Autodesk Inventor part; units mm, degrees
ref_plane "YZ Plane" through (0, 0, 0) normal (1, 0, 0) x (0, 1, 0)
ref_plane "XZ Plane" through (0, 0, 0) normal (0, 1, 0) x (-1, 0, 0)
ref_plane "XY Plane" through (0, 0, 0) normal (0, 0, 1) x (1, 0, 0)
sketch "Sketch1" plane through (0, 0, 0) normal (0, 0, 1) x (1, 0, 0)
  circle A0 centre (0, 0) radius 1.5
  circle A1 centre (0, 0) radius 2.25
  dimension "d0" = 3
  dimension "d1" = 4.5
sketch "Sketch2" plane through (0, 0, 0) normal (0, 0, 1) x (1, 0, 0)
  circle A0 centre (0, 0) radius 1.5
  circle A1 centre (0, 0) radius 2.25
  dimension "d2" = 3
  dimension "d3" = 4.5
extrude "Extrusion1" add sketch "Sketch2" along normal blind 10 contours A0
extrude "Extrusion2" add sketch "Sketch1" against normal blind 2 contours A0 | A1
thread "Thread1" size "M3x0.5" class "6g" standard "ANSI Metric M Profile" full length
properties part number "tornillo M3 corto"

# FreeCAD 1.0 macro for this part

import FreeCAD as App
import Part
import Sketcher

V = App.Vector

doc = App.newDocument("Part")
body = doc.addObject("PartDesign::Body", "Body")

# Sketch on XY plane
sketch1 = body.newObject("Sketcher::SketchObject", "Sketch")
sketch1.AttachmentSupport = (doc.getObject("XY_Plane"), [""])
sketch1.MapMode = "FlatFace"
sketch1.addGeometry(Part.Circle(V(0, 0, 0), V(0, 0, 1), 1.5), False)
sketch1.addConstraint([
    Sketcher.Constraint("Coincident", 0, 3, -1, 1),
    Sketcher.Constraint("Diameter", 0, 3.0),
])
pad1 = body.newObject("PartDesign::Pad", "Pad")
pad1.Profile = sketch1
pad1.Length = 10

# Sketch on XY plane
sketch2 = body.newObject("Sketcher::SketchObject", "Sketch001")
sketch2.AttachmentSupport = (doc.getObject("XY_Plane"), [""])
sketch2.MapMode = "FlatFace"
sketch2.addGeometry(Part.Circle(V(0, 0, 0), V(0, 0, 1), 2.2), False)
sketch2.addConstraint([
    Sketcher.Constraint("Coincident", 0, 3, -1, 1),
    Sketcher.Constraint("Diameter", 0, 4.5),
])
pad2 = body.newObject("PartDesign::Pad", "Pad001")
pad2.Profile = sketch2
pad2.Length = 2
pad2.Reversed = True

doc.recompute()
